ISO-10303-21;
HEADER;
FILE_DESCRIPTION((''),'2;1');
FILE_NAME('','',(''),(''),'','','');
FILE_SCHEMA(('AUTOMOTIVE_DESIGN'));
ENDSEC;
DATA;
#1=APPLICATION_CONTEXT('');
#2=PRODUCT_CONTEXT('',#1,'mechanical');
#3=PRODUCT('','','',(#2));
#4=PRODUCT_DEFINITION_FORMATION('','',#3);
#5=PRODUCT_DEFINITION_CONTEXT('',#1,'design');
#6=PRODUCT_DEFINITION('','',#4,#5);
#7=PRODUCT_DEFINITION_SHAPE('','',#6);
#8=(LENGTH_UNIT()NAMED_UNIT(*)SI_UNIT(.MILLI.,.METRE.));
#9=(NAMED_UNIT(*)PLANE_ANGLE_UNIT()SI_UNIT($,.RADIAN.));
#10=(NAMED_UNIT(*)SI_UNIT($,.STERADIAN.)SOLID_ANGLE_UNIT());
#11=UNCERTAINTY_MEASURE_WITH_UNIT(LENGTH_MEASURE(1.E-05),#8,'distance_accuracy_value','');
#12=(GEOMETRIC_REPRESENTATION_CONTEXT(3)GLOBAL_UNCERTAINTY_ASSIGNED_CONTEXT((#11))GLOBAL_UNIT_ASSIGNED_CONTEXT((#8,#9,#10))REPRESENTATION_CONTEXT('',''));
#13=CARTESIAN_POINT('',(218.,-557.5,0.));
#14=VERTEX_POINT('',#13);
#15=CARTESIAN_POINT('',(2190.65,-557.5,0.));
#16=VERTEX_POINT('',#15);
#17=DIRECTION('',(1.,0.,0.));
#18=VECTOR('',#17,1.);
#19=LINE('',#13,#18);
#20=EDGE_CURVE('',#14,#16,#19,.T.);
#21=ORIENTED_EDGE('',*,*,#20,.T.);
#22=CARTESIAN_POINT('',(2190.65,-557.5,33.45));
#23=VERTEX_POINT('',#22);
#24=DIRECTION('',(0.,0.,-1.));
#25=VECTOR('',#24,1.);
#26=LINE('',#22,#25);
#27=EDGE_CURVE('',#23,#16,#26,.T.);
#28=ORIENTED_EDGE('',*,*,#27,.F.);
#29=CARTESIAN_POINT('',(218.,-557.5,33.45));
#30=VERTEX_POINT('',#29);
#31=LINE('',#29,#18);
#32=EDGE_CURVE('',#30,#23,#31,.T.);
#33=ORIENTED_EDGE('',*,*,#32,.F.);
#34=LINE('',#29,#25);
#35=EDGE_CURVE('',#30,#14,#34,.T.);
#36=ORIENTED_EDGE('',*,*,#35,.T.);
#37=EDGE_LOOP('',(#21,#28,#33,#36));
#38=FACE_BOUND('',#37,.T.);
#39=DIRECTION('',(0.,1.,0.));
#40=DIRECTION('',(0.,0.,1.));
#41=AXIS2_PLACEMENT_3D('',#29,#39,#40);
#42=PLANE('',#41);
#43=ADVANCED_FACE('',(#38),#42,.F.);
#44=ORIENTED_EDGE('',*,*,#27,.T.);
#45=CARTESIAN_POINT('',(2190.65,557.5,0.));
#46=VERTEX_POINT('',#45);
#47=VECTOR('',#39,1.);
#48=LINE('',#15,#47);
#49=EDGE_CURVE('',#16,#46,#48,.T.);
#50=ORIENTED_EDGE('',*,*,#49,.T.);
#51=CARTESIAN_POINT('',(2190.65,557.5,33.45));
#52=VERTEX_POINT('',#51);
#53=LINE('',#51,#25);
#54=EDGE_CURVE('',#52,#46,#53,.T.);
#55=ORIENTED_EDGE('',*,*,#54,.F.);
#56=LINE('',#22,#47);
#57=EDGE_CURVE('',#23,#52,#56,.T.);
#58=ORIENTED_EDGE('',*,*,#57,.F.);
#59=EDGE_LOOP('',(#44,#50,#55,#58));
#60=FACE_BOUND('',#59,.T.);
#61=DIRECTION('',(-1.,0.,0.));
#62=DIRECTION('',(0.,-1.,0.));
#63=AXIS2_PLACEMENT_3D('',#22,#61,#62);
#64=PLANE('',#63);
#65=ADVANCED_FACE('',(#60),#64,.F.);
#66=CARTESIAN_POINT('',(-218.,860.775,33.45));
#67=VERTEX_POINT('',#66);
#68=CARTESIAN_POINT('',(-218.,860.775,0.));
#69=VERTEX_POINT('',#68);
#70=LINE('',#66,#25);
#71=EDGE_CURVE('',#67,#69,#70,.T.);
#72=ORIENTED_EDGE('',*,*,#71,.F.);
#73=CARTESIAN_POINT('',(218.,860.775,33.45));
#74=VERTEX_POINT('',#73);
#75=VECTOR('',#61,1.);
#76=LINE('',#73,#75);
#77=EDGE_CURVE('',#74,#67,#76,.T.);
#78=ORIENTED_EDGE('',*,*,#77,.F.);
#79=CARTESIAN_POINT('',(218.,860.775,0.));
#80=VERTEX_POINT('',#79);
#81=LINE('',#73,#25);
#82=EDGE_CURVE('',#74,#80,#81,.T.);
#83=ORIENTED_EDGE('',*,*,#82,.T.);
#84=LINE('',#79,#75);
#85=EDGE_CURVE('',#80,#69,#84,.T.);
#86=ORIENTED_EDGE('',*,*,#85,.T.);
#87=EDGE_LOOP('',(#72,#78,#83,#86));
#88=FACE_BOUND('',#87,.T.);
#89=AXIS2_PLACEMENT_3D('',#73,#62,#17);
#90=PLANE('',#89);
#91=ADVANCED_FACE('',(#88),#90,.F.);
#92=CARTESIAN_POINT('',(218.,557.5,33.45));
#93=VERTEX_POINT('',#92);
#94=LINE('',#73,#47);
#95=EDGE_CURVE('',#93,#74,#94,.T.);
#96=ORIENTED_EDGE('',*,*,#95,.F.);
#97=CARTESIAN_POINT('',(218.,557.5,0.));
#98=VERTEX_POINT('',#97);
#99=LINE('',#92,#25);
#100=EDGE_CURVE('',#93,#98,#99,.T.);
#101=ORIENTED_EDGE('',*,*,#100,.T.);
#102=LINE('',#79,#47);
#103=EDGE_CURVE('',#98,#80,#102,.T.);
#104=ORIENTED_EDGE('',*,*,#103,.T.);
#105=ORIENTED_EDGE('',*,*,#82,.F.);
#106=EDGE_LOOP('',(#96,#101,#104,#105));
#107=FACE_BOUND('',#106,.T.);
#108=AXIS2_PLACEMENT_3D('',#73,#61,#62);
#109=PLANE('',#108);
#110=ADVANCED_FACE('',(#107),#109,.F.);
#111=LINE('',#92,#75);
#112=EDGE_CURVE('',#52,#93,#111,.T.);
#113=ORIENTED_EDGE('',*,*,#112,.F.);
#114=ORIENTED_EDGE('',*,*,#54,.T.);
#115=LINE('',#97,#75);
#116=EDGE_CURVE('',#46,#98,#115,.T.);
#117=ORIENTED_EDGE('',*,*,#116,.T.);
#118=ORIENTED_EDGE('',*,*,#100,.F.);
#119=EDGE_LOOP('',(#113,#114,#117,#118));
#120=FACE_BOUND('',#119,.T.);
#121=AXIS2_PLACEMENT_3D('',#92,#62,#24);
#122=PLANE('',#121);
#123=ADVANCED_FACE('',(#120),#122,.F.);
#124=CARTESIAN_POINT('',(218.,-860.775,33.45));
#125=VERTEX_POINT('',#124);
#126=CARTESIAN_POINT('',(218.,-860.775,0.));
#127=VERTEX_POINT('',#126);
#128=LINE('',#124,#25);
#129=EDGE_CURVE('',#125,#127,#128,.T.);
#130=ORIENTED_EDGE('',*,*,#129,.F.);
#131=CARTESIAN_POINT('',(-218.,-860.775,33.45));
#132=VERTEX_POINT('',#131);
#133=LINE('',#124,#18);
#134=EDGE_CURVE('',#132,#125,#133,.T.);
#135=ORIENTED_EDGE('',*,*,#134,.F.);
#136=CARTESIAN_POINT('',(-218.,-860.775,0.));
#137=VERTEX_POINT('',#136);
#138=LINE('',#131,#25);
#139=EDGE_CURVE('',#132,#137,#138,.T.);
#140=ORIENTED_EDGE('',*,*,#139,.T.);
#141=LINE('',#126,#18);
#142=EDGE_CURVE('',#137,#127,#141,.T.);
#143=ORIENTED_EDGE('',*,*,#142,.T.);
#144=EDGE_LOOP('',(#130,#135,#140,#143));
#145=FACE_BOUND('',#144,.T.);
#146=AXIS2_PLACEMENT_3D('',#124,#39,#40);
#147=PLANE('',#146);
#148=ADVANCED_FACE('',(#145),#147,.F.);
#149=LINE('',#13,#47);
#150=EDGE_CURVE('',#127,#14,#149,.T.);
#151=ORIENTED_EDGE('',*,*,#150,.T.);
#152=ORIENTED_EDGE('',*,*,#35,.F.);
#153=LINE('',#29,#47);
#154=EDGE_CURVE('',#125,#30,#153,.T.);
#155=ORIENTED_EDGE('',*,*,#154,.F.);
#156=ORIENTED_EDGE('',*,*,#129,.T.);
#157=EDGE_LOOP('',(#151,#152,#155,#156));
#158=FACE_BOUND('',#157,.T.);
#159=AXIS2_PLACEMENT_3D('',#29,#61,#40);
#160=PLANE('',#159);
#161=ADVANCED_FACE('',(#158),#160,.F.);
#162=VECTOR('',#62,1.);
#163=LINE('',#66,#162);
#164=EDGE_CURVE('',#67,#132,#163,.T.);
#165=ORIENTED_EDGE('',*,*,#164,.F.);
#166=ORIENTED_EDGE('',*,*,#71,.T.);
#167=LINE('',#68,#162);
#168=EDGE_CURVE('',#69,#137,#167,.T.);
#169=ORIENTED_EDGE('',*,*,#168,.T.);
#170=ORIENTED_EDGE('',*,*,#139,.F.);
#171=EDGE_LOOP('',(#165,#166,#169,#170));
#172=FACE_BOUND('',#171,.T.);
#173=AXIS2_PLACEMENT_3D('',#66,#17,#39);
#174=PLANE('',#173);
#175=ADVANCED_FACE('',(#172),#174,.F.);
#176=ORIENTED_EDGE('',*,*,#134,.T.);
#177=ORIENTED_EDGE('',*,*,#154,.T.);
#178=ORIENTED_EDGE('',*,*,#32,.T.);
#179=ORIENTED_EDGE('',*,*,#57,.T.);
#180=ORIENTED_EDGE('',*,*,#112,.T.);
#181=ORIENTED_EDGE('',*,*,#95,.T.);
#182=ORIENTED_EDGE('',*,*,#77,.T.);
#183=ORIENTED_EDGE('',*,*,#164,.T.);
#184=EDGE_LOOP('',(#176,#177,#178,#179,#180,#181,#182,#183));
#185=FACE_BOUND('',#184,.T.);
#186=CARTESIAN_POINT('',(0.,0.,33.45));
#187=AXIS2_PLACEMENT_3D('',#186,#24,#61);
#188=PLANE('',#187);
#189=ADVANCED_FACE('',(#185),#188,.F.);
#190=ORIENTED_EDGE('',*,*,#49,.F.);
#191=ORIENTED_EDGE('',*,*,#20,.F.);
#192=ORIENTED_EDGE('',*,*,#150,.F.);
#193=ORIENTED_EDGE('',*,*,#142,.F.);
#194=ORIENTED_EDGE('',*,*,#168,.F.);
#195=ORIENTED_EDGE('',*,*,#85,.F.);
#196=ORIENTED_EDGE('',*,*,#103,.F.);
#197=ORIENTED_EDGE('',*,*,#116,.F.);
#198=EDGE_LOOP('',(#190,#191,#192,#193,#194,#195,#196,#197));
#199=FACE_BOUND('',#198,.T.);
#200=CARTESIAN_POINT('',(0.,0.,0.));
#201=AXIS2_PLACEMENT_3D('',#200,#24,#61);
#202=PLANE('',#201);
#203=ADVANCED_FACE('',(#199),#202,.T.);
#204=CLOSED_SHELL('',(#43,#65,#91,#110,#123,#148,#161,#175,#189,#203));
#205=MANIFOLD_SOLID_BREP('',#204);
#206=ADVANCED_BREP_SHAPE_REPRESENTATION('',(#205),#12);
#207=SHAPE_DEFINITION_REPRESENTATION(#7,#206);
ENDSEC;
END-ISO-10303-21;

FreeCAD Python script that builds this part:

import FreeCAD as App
import Part
import Sketcher

V = App.Vector
Q = App.Units.Quantity


def add_polygon(sketch, points):
    """Adds a closed chain of lines whose ends are joined by coincident constraints."""
    first, n = sketch.GeometryCount, len(points)
    for a, b in zip(points, points[1:] + points[:1]):
        sketch.addGeometry(Part.LineSegment(App.Vector(*a, 0), App.Vector(*b, 0)), False)
    for i in range(n):
        sketch.addConstraint(Sketcher.Constraint("Coincident", first + i, 2, first + (i + 1) % n, 1))

doc = App.newDocument("Part")
params = doc.addObject("Spreadsheet::Sheet", "Params")
for row, (alias, value) in enumerate([
    ("sketch1_width", "436 mm"),
    ("sketch1_height", "1115 mm"),
    ("sketch1_width2", "1972.65 mm"),
    ("sketch1_height2", "1721.55 mm"),
    ("pad1_length", "33.45 mm"),
], start=1):
    params.set(f"A{row}", alias)
    params.set(f"B{row}", "=" + value)
    params.setAlias(f"B{row}", alias)

body = doc.addObject("PartDesign::Body", "Body")

# Sketch on XY plane
sketch1 = body.newObject("Sketcher::SketchObject", "Sketch")
sketch1.AttachmentSupport = (doc.getObject("XY_Plane"), [""])
sketch1.MapMode = "FlatFace"
add_polygon(sketch1, [(218, -861), (218, -558), (2191, -558), (2191, 558), (218, 558), (218, 861), (-218, 861), (-218, -861)])  # lines 0-7
sketch1.addConstraint(Sketcher.Constraint("Vertical", 0))
sketch1.addConstraint(Sketcher.Constraint("Horizontal", 1))
sketch1.addConstraint(Sketcher.Constraint("Vertical", 2))
sketch1.addConstraint(Sketcher.Constraint("Horizontal", 3))
sketch1.addConstraint(Sketcher.Constraint("Vertical", 4))
sketch1.addConstraint(Sketcher.Constraint("Horizontal", 5))
sketch1.addConstraint(Sketcher.Constraint("Vertical", 6))
sketch1.addConstraint(Sketcher.Constraint("Horizontal", 7))
sketch1.addConstraint(Sketcher.Constraint("Symmetric", 4, 2, 6, 2, -1, 1))
sketch1.addConstraint(Sketcher.Constraint("Symmetric", 0, 2, 3, 2, -1))
sketch1.addConstraint(Sketcher.Constraint("DistanceX", 5, 2, 5, 1, Q("436 mm")))
sketch1.addConstraint(Sketcher.Constraint("DistanceY", 2, 1, 2, 2, Q("1115 mm")))
sketch1.addConstraint(Sketcher.Constraint("DistanceX", 1, 1, 1, 2, Q("1972.65 mm")))
sketch1.addConstraint(Sketcher.Constraint("DistanceY", 6, 2, 6, 1, Q("1721.55 mm")))
sketch1.setExpression("Constraints[18]", "Params.sketch1_width")
sketch1.setExpression("Constraints[19]", "Params.sketch1_height")
sketch1.setExpression("Constraints[20]", "Params.sketch1_width2")
sketch1.setExpression("Constraints[21]", "Params.sketch1_height2")
pad1 = body.newObject("PartDesign::Pad", "Pad")
pad1.Profile = sketch1
pad1.setExpression("Length", "Params.pad1_length")

doc.recompute()
